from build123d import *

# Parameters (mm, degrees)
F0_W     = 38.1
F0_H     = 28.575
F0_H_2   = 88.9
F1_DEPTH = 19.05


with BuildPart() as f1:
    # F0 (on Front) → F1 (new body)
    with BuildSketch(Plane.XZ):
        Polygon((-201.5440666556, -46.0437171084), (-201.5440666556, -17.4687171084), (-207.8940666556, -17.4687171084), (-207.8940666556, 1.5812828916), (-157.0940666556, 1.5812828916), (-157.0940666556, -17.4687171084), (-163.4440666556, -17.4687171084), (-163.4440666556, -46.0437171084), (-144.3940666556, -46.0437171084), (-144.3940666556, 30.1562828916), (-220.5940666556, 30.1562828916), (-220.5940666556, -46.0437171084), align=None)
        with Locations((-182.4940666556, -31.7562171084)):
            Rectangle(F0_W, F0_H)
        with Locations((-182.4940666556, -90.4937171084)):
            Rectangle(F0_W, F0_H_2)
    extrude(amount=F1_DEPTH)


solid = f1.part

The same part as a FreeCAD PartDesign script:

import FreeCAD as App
import Part
import Sketcher
from FreeCAD import Vector
Q = App.Units.Quantity

doc = App.newDocument("Part")
body = doc.addObject("PartDesign::Body", "Body")

# Sketch on XZ plane
sketch1 = doc.addObject("Sketcher::SketchObject", "Sketch")
body.addObject(sketch1)
sketch1.AttachmentSupport = (doc.XZ_Plane, [""])
sketch1.MapMode = "FlatFace"
sketch1.addGeometry([
    Part.LineSegment(Vector(-144, -46, 0), Vector(-144, 30, 0)),  # 0
    Part.LineSegment(Vector(-144, 30, 0), Vector(-221, 30, 0)),  # 1
    Part.LineSegment(Vector(-221, 30, 0), Vector(-221, -46, 0)),  # 2
    Part.LineSegment(Vector(-221, -46, 0), Vector(-202, -46, 0)),  # 3
    Part.LineSegment(Vector(-202, -46, 0), Vector(-202, -135, 0)),  # 4
    Part.LineSegment(Vector(-202, -135, 0), Vector(-163, -135, 0)),  # 5
    Part.LineSegment(Vector(-163, -135, 0), Vector(-163, -46, 0)),  # 6
    Part.LineSegment(Vector(-163, -46, 0), Vector(-144, -46, 0)),  # 7
    Part.LineSegment(Vector(-208, -17, 0), Vector(-208, 2, 0)),  # 8
    Part.LineSegment(Vector(-208, 2, 0), Vector(-157, 2, 0)),  # 9
    Part.LineSegment(Vector(-157, 2, 0), Vector(-157, -17, 0)),  # 10
    Part.LineSegment(Vector(-157, -17, 0), Vector(-208, -17, 0)),  # 11
], False)
sketch1.addConstraint([
    Sketcher.Constraint("Coincident", 0, 2, 1, 1),
    Sketcher.Constraint("Coincident", 1, 2, 2, 1),
    Sketcher.Constraint("Coincident", 2, 2, 3, 1),
    Sketcher.Constraint("Coincident", 3, 2, 4, 1),
    Sketcher.Constraint("Coincident", 4, 2, 5, 1),
    Sketcher.Constraint("Coincident", 5, 2, 6, 1),
    Sketcher.Constraint("Coincident", 6, 2, 7, 1),
    Sketcher.Constraint("Coincident", 7, 2, 0, 1),
    Sketcher.Constraint("Coincident", 8, 2, 9, 1),
    Sketcher.Constraint("Coincident", 9, 2, 10, 1),
    Sketcher.Constraint("Coincident", 10, 2, 11, 1),
    Sketcher.Constraint("Coincident", 11, 2, 8, 1),
    Sketcher.Constraint("Vertical", 0),
    Sketcher.Constraint("Horizontal", 1),
    Sketcher.Constraint("Vertical", 2),
    Sketcher.Constraint("Horizontal", 3),
    Sketcher.Constraint("Vertical", 4),
    Sketcher.Constraint("Horizontal", 5),
    Sketcher.Constraint("Vertical", 6),
    Sketcher.Constraint("Horizontal", 7),
    Sketcher.Constraint("Vertical", 8),
    Sketcher.Constraint("Horizontal", 9),
    Sketcher.Constraint("Vertical", 10),
    Sketcher.Constraint("Horizontal", 11),
    Sketcher.Constraint("Horizontal", 3, 2, 6, 2),
    Sketcher.Constraint("Equal", 3, 7),
    Sketcher.Constraint("Equal", 1, 0),
    Sketcher.Constraint("Equal", 7, 8),
    Sketcher.Constraint("DistanceX", 1, 2, 1, 1, Q("3 in")),
    Sketcher.Constraint("DistanceX", 9, 1, 9, 2, Q("2 in")),
    Sketcher.Constraint("DistanceX", 5, 1, 5, 2, Q("1.5 in")),
    Sketcher.Constraint("DistanceY", 4, 2, 4, 1, Q("3.5 in")),
    Sketcher.Constraint("DistanceX", 1, 2, 8, 2, Q("0.5 in")),
    Sketcher.Constraint("DistanceY", 8, 2, 1, 2, Q("1.125 in")),
    Sketcher.Constraint("DistanceX", 0, 2, -1, 1, 144.394067),
    Sketcher.Constraint("DistanceY", -1, 1, 0, 2, 30.156283),
])
pad1 = doc.addObject("PartDesign::Pad", "Pad")
body.addObject(pad1)
pad1.Profile = sketch1
pad1.Length = Q("0.75 in")

doc.recompute()
